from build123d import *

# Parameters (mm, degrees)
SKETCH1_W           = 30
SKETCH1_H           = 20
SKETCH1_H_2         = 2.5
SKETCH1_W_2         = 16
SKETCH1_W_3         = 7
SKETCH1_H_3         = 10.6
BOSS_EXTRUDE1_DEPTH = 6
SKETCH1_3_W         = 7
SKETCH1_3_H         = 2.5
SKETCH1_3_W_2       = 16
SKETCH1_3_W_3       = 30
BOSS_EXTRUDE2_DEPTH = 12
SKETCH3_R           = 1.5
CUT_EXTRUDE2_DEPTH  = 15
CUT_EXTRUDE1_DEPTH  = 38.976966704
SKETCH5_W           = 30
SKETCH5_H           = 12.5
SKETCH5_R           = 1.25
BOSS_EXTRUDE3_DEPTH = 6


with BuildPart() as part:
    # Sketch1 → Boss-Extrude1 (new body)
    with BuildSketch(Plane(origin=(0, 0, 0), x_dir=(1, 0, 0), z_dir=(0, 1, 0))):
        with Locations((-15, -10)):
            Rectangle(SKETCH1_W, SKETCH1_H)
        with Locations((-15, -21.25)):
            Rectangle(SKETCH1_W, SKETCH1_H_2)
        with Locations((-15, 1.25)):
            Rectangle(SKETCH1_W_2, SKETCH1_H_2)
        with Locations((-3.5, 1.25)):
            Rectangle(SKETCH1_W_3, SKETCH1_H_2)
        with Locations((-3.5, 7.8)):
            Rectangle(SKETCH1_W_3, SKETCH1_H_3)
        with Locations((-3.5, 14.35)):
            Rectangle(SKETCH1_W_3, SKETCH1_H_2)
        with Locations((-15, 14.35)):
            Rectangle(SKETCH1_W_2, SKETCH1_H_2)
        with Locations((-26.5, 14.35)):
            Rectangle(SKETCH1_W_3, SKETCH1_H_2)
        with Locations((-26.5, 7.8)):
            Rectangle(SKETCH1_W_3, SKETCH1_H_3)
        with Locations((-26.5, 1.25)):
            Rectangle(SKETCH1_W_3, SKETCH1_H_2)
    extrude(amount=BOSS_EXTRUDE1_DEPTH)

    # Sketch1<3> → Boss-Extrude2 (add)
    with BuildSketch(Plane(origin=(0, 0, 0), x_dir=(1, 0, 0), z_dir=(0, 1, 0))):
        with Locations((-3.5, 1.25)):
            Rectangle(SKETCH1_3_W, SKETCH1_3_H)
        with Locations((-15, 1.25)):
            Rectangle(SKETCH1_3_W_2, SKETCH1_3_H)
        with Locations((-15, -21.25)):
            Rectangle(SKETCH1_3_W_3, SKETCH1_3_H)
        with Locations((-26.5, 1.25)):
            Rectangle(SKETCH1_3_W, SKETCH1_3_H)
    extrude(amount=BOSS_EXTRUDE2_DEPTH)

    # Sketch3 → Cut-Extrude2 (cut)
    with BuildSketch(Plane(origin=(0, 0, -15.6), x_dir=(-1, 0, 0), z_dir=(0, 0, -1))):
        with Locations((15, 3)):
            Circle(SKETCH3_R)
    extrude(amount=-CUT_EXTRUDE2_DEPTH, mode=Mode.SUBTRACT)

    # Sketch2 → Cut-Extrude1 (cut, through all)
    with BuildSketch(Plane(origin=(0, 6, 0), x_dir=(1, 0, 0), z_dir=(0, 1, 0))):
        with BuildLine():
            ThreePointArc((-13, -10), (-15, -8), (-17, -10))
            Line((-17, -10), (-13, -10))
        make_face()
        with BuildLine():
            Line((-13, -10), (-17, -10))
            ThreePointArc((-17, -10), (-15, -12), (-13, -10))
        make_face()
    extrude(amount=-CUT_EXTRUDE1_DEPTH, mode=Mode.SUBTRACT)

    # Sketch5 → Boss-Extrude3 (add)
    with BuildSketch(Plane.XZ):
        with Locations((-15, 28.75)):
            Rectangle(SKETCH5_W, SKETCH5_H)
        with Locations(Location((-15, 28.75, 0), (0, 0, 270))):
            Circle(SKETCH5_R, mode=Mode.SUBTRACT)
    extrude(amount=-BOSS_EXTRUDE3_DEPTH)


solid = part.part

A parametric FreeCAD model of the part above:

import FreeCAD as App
import Part
import Sketcher


def add_polygon(sketch, points):
    """Adds a closed chain of lines whose ends are joined by coincident constraints."""
    first, n = sketch.GeometryCount, len(points)
    for a, b in zip(points, points[1:] + points[:1]):
        sketch.addGeometry(Part.LineSegment(App.Vector(*a, 0), App.Vector(*b, 0)), False)
    for i in range(n):
        sketch.addConstraint(Sketcher.Constraint("Coincident", first + i, 2, first + (i + 1) % n, 1))

doc = App.newDocument("Part")
body = doc.addObject("PartDesign::Body", "Body")

sketch1 = body.newObject("Sketcher::SketchObject", "Sketch")
sketch1.AttachmentSupport = (doc.getObject("XZ_Plane"), [""])
sketch1.MapMode = "FlatFace"
add_polygon(sketch1, [(-30, -15.6), (-30, 22.5), (0, 22.5), (0, -15.6)])
add_polygon(sketch1, [(-7, -2.5), (-23, -2.5), (-23, -13.1), (-7, -13.1)])
sketch1.addConstraint(Sketcher.Constraint("Vertical", 0))
sketch1.addConstraint(Sketcher.Constraint("Horizontal", 1))
sketch1.addConstraint(Sketcher.Constraint("Vertical", 2))
sketch1.addConstraint(Sketcher.Constraint("Horizontal", 3))
sketch1.addConstraint(Sketcher.Constraint("Horizontal", 4))
sketch1.addConstraint(Sketcher.Constraint("Vertical", 5))
sketch1.addConstraint(Sketcher.Constraint("Horizontal", 6))
sketch1.addConstraint(Sketcher.Constraint("Vertical", 7))
sketch1.addConstraint(Sketcher.Constraint("PointOnObject", 1, 2, -2))
sketch1.addConstraint(Sketcher.Constraint("DistanceX", 1, 1, 1, 2, 30.0))
sketch1.addConstraint(Sketcher.Constraint("DistanceX", 4, 2, 4, 1, 16.0))
sketch1.addConstraint(Sketcher.Constraint("DistanceY", 0, 1, 0, 2, 38.1))
sketch1.addConstraint(Sketcher.Constraint("DistanceY", 5, 2, 5, 1, 10.6))
sketch1.addConstraint(Sketcher.Constraint("DistanceX", 4, 2, -1, 1, 23.0))
sketch1.addConstraint(Sketcher.Constraint("DistanceY", 4, 2, 0, 2, 25.0))
sketch1.addConstraint(Sketcher.Constraint("DistanceY", -1, 1, 0, 2, 22.5))
pad1 = body.newObject("PartDesign::Pad", "Pad")
pad1.Profile = sketch1
pad1.Length = 6
pad1.Reversed = True

sketch2 = body.newObject("Sketcher::SketchObject", "Sketch001")
sketch2.AttachmentSupport = (doc.getObject("XZ_Plane"), [""])
sketch2.MapMode = "FlatFace"
add_polygon(sketch2, [(0, 0), (0, -2.5), (-30, -2.5), (-30, 0)])
add_polygon(sketch2, [(-30, 20), (-30, 22.5), (0, 22.5), (0, 20)])
sketch2.addConstraint(Sketcher.Constraint("Vertical", 0))
sketch2.addConstraint(Sketcher.Constraint("Horizontal", 1))
sketch2.addConstraint(Sketcher.Constraint("Vertical", 2))
sketch2.addConstraint(Sketcher.Constraint("Horizontal", 3))
sketch2.addConstraint(Sketcher.Constraint("Vertical", 4))
sketch2.addConstraint(Sketcher.Constraint("Horizontal", 5))
sketch2.addConstraint(Sketcher.Constraint("Vertical", 6))
sketch2.addConstraint(Sketcher.Constraint("Horizontal", 7))
sketch2.addConstraint(Sketcher.Constraint("Coincident", 3, 2, -1, 1))
sketch2.addConstraint(Sketcher.Constraint("PointOnObject", 5, 2, -2))
sketch2.addConstraint(Sketcher.Constraint("Vertical", 2, 2, 4, 2))
sketch2.addConstraint(Sketcher.Constraint("Equal", 2, 4))
sketch2.addConstraint(Sketcher.Constraint("DistanceX", 1, 2, 1, 1, 30.0))
sketch2.addConstraint(Sketcher.Constraint("DistanceY", 0, 2, 0, 1, 2.5))
sketch2.addConstraint(Sketcher.Constraint("DistanceY", -1, 1, 6, 2, 20.0))
pad2 = body.newObject("PartDesign::Pad", "Pad001")
pad2.Profile = sketch2
pad2.Length = 12
pad2.Reversed = True

sketch3 = body.newObject("Sketcher::SketchObject", "Sketch002")
sketch3.AttachmentSupport = (doc.getObject("XY_Plane"), [""])
sketch3.MapMode = "FlatFace"
sketch3.AttachmentOffset = App.Placement(App.Vector(0, 0, -15.6), App.Rotation())
sketch3.addGeometry(Part.Circle(App.Vector(-15, 3, 0), App.Vector(0, 0, 1), 1.5), False)
sketch3.addConstraint(Sketcher.Constraint("Diameter", 0, 3.0))
sketch3.addConstraint(Sketcher.Constraint("DistanceX", 0, 3, -1, 1, 15.0))
sketch3.addConstraint(Sketcher.Constraint("DistanceY", -1, 1, 0, 3, 3.0))
pocket1 = body.newObject("PartDesign::Pocket", "Pocket")
pocket1.Profile = sketch3
pocket1.Length = 15
pocket1.Reversed = True

sketch4 = body.newObject("Sketcher::SketchObject", "Sketch003")
sketch4.AttachmentSupport = (doc.getObject("XZ_Plane"), [""])
sketch4.MapMode = "FlatFace"
sketch4.AttachmentOffset = App.Placement(App.Vector(0, 0, -6), App.Rotation())
sketch4.addGeometry(Part.Circle(App.Vector(-15, 10, 0), App.Vector(0, 0, 1), 2), False)
sketch4.addConstraint(Sketcher.Constraint("Diameter", 0, 4.0))
sketch4.addConstraint(Sketcher.Constraint("DistanceX", 0, 3, -1, 1, 15.0))
sketch4.addConstraint(Sketcher.Constraint("DistanceY", -1, 1, 0, 3, 10.0))
pocket2 = body.newObject("PartDesign::Pocket", "Pocket001")
pocket2.Profile = sketch4
pocket2.Type = "ThroughAll"
pocket2.Reversed = True

sketch5 = body.newObject("Sketcher::SketchObject", "Sketch004")
sketch5.AttachmentSupport = (doc.getObject("XZ_Plane"), [""])
sketch5.MapMode = "FlatFace"
add_polygon(sketch5, [(-30, 35), (-30, 22.5), (0, 22.5), (0, 35)])
sketch5.addGeometry(Part.Circle(App.Vector(-15, 28.75, 0), App.Vector(0, 0, 1), 1.25), False)
sketch5.addConstraint(Sketcher.Constraint("Vertical", 0))
sketch5.addConstraint(Sketcher.Constraint("Horizontal", 1))
sketch5.addConstraint(Sketcher.Constraint("Vertical", 2))
sketch5.addConstraint(Sketcher.Constraint("Horizontal", 3))
sketch5.addConstraint(Sketcher.Constraint("PointOnObject", 1, 2, -2))
sketch5.addConstraint(Sketcher.Constraint("Diameter", 4, 2.5))
sketch5.addConstraint(Sketcher.Constraint("DistanceX", 1, 1, 1, 2, 30.0))
sketch5.addConstraint(Sketcher.Constraint("DistanceY", 0, 2, 0, 1, 12.5))
sketch5.addConstraint(Sketcher.Constraint("DistanceX", 4, 3, -1, 1, 15.0))
sketch5.addConstraint(Sketcher.Constraint("DistanceY", -1, 1, 2, 2, 35.0))
sketch5.addConstraint(Sketcher.Constraint("DistanceY", -1, 1, 4, 3, 28.75))
pad3 = body.newObject("PartDesign::Pad", "Pad002")
pad3.Profile = sketch5
pad3.Length = 6
pad3.Reversed = True

doc.recompute()
